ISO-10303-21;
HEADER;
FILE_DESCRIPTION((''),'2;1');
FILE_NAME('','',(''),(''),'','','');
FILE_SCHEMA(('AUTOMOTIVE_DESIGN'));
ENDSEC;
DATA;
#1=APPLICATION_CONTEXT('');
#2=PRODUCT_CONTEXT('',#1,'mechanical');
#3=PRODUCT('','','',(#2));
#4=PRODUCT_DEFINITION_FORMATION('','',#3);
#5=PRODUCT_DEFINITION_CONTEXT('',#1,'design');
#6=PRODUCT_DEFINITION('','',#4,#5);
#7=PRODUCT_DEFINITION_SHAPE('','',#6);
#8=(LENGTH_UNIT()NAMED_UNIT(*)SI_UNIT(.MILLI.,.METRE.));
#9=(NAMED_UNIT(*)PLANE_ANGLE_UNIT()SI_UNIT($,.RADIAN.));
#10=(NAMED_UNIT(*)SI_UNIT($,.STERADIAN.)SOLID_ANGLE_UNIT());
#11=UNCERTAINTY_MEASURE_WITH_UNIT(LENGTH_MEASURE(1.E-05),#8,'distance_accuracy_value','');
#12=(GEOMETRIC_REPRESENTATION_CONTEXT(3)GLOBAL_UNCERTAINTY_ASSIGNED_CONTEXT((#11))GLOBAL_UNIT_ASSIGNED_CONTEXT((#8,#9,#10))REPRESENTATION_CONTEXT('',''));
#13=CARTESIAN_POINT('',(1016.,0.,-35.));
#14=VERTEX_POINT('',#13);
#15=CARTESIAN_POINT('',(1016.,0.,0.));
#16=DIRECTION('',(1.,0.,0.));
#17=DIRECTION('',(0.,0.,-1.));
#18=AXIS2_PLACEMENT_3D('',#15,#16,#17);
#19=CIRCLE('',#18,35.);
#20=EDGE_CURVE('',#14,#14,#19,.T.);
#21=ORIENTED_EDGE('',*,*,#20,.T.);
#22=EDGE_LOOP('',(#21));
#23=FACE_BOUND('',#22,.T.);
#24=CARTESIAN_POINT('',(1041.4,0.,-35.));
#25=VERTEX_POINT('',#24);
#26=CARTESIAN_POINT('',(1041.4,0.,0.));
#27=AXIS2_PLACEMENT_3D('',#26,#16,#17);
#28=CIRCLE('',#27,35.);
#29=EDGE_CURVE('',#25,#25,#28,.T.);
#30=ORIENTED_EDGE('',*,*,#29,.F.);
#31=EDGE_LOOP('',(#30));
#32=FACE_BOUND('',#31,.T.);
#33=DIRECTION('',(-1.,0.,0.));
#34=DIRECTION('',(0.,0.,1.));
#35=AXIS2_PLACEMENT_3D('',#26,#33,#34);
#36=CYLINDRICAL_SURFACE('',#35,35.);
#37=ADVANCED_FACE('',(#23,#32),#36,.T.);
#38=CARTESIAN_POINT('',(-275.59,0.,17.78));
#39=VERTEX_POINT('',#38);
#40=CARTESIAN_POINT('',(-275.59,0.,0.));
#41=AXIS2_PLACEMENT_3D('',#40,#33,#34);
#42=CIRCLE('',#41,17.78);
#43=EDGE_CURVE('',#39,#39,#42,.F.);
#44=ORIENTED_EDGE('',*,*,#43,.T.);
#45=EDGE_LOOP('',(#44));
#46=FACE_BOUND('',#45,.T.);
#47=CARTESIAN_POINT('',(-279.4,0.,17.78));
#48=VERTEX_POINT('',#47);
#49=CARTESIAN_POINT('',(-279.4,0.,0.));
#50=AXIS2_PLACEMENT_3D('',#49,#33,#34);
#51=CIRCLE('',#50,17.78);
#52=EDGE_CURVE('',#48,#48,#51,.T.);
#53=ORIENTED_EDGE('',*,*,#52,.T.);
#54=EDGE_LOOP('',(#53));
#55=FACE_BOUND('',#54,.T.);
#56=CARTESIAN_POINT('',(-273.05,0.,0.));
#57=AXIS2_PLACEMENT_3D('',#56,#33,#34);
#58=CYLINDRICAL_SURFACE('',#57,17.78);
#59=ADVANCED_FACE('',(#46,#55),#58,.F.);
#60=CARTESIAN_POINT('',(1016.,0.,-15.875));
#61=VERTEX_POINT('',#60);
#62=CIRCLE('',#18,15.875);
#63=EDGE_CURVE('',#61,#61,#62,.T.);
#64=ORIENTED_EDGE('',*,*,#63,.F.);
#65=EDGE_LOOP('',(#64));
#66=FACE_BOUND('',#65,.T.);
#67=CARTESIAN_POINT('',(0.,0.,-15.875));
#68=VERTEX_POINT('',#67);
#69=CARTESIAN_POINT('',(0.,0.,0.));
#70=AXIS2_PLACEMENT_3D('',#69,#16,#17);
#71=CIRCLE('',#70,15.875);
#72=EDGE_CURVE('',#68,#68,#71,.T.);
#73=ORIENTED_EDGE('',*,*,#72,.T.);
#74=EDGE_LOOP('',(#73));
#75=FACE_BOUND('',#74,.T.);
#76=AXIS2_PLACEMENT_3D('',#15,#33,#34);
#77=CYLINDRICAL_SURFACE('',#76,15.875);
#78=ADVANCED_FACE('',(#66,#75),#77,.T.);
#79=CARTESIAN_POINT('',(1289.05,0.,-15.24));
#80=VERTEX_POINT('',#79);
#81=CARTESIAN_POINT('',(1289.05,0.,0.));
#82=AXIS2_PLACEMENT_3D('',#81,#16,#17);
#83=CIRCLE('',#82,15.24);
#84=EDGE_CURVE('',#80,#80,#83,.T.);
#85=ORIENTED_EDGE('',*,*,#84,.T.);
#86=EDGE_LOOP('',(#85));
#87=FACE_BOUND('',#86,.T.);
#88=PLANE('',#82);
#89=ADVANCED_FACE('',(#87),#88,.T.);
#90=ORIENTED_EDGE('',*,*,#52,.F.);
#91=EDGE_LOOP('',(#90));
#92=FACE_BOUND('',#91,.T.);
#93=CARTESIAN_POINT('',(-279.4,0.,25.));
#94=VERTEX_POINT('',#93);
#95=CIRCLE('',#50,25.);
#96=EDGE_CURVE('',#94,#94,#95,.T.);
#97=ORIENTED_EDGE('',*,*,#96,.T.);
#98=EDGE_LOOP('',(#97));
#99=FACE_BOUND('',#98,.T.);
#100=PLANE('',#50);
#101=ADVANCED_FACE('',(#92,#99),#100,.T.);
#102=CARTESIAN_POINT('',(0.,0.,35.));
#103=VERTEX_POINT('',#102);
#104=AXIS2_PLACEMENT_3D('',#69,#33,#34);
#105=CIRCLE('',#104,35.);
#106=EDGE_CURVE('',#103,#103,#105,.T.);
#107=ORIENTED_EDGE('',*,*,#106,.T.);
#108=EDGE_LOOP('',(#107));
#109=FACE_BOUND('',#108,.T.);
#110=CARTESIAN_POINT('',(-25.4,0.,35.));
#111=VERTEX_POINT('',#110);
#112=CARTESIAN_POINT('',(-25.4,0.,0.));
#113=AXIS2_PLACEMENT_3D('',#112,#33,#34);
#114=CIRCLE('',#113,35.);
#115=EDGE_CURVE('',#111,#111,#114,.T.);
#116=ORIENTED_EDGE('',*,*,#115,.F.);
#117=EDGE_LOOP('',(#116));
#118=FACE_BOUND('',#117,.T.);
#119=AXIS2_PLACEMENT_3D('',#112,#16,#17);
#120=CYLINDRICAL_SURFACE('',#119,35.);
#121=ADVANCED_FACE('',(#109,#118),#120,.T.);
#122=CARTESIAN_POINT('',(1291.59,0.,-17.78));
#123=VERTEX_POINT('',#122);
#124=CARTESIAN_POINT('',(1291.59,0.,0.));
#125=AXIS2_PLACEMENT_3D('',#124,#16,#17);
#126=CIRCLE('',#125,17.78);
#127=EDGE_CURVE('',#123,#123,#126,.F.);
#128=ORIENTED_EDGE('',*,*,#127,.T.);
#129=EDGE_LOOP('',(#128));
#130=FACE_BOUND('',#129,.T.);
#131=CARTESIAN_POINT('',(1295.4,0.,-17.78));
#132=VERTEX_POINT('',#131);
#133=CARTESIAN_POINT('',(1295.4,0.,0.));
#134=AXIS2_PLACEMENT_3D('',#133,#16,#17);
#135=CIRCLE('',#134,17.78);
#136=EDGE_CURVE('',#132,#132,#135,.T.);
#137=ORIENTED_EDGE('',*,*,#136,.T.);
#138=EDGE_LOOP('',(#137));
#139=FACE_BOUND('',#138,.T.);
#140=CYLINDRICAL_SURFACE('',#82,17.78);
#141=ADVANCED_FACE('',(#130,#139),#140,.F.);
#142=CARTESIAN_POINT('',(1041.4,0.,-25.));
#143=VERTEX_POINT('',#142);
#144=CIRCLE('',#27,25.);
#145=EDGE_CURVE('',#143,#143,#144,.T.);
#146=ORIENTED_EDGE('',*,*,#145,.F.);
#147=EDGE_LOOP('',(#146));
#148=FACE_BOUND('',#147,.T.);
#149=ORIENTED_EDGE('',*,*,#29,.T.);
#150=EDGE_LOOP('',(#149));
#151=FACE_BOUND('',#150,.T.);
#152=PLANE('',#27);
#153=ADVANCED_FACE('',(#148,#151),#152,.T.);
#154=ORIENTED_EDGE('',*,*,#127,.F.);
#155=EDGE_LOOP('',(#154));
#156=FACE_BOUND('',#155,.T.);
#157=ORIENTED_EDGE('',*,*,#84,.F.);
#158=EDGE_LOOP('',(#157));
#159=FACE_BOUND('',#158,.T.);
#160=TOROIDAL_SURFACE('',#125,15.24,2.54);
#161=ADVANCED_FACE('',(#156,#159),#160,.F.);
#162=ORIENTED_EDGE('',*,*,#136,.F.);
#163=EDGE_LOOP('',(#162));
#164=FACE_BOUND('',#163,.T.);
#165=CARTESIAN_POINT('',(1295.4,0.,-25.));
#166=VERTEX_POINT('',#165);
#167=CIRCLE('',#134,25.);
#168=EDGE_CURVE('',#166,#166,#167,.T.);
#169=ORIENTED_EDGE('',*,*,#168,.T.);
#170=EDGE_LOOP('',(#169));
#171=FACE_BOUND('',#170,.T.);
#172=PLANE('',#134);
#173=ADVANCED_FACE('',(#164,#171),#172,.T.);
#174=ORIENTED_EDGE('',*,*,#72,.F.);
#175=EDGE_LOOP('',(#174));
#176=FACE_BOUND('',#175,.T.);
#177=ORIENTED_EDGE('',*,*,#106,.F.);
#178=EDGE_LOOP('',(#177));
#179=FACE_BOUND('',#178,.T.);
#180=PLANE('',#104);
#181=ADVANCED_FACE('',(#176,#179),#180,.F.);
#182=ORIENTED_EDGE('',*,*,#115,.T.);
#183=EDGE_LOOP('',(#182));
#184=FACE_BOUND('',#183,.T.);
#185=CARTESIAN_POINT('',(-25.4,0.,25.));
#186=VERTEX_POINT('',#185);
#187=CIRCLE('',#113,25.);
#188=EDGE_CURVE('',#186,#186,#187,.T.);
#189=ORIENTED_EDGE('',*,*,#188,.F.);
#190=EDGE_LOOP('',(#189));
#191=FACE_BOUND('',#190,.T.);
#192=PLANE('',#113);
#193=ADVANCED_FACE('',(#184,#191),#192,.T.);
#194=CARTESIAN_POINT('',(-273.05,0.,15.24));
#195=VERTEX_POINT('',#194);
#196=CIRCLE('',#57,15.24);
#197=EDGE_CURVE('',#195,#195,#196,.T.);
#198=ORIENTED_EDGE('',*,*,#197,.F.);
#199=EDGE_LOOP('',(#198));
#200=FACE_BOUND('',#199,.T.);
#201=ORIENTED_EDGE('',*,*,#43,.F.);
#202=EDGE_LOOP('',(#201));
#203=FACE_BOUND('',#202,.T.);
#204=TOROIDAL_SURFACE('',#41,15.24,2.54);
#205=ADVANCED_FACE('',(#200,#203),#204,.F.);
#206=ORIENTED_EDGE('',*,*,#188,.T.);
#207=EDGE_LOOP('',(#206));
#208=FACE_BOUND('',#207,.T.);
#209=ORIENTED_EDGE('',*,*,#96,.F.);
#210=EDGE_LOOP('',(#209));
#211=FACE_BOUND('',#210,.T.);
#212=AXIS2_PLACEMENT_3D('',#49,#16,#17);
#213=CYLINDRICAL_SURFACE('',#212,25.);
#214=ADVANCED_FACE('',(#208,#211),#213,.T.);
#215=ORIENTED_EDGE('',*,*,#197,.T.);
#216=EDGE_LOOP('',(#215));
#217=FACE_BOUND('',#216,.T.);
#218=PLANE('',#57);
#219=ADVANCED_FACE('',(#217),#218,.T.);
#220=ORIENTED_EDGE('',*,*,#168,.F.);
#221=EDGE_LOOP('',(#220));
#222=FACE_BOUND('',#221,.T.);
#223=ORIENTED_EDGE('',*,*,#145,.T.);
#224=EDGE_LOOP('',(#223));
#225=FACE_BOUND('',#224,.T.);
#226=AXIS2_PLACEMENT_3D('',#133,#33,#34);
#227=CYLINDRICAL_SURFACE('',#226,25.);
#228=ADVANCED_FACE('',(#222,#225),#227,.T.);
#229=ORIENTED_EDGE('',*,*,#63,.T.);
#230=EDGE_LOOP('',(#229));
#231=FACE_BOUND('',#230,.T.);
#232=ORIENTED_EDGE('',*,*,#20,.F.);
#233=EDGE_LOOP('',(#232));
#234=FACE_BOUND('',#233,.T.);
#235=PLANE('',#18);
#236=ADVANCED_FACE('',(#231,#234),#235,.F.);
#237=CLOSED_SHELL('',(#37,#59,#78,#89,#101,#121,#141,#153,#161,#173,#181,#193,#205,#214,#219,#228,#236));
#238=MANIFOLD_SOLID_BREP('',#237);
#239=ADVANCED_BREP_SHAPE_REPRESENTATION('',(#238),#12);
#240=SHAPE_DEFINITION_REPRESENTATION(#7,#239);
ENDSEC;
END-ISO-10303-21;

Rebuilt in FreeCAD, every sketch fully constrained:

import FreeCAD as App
import Part
import Sketcher
from FreeCAD import Vector
Q = App.Units.Quantity


def edges_at(feature, points):
    """Names of the edges that pass closest to the given points."""
    edges = feature.Shape.Edges
    near = lambda p: min(range(len(edges)), key=lambda i: edges[i].distToShape(Part.Vertex(*p))[0])
    return sorted({f"Edge{near(p) + 1}" for p in points})

doc = App.newDocument("Part")
params = doc.addObject("Spreadsheet::Sheet", "Params")
for row, (alias, value) in enumerate([
    ("sketch1_diameter", "1.25 in"),
    ("pad1_length", "40 in"),
    ("pad2_length", "1 in"),
    ("pad3_length", "1 in"),
    ("pad4_length", "10 in"),
    ("pad5_length", "10 in"),
    ("sketch6_diameter", "1.4 in"),
    ("pocket1_length", "0.25 in"),
    ("sketch7_diameter", "1.4 in"),
    ("pocket2_length", "0.25 in"),
    ("fillet_radius", "0.1 in"),
], start=1):
    params.set(f"A{row}", alias)
    params.set(f"B{row}", "=" + value)
    params.setAlias(f"B{row}", alias)

body = doc.addObject("PartDesign::Body", "Body")

sketch1 = doc.addObject("Sketcher::SketchObject", "Sketch")
body.addObject(sketch1)
sketch1.AttachmentSupport = (doc.YZ_Plane, [""])
sketch1.MapMode = "FlatFace"
sketch1.addGeometry(Part.Circle(Vector(0, 0, 0), Vector(0, 0, 1), 16), False)
sketch1.addConstraint(Sketcher.Constraint("Coincident", 0, 3, -1, 1))
sketch1.addConstraint(Sketcher.Constraint("Diameter", 0, Q("1.25 in")))
sketch1.setExpression("Constraints[1]", "Params.sketch1_diameter")
pad1 = doc.addObject("PartDesign::Pad", "Pad")
body.addObject(pad1)
pad1.Profile = sketch1
pad1.setExpression("Length", "Params.pad1_length")

sketch2 = doc.addObject("Sketcher::SketchObject", "Sketch001")
body.addObject(sketch2)
sketch2.AttachmentSupport = (doc.YZ_Plane, [""])
sketch2.MapMode = "FlatFace"
sketch2.AttachmentOffset = App.Placement(Vector(0, 0, 40 * 25.4), App.Rotation())
sketch2.addGeometry(Part.Circle(Vector(0, 0, 0), Vector(0, 0, 1), 35), False)
sketch2.addConstraint(Sketcher.Constraint("Coincident", 0, 3, -1, 1))
sketch2.addConstraint(Sketcher.Constraint("Diameter", 0, 70.0))
pad2 = doc.addObject("PartDesign::Pad", "Pad001")
body.addObject(pad2)
pad2.Profile = sketch2
pad2.setExpression("Length", "Params.pad2_length")

sketch3 = doc.addObject("Sketcher::SketchObject", "Sketch002")
body.addObject(sketch3)
sketch3.AttachmentSupport = (doc.YZ_Plane, [""])
sketch3.MapMode = "FlatFace"
sketch3.AttachmentOffset = App.Placement(Vector(0, 0, -1 * 25.4), App.Rotation())
sketch3.addGeometry(Part.Circle(Vector(0, 0, 0), Vector(0, 0, 1), 35), False)
sketch3.addConstraint(Sketcher.Constraint("Coincident", 0, 3, -1, 1))
sketch3.addConstraint(Sketcher.Constraint("Diameter", 0, 70.0))
pad3 = doc.addObject("PartDesign::Pad", "Pad002")
body.addObject(pad3)
pad3.Profile = sketch3
pad3.setExpression("Length", "Params.pad3_length")

sketch4 = doc.addObject("Sketcher::SketchObject", "Sketch003")
body.addObject(sketch4)
sketch4.AttachmentSupport = (doc.YZ_Plane, [""])
sketch4.MapMode = "FlatFace"
sketch4.AttachmentOffset = App.Placement(Vector(0, 0, 41 * 25.4), App.Rotation())
sketch4.addGeometry(Part.Circle(Vector(0, 0, 0), Vector(0, 0, 1), 25), False)
sketch4.addConstraint(Sketcher.Constraint("Coincident", 0, 3, -1, 1))
sketch4.addConstraint(Sketcher.Constraint("Diameter", 0, 50.0))
pad4 = doc.addObject("PartDesign::Pad", "Pad003")
body.addObject(pad4)
pad4.Profile = sketch4
pad4.setExpression("Length", "Params.pad4_length")

sketch5 = doc.addObject("Sketcher::SketchObject", "Sketch004")
body.addObject(sketch5)
sketch5.AttachmentSupport = (doc.YZ_Plane, [""])
sketch5.MapMode = "FlatFace"
sketch5.AttachmentOffset = App.Placement(Vector(0, 0, -11 * 25.4), App.Rotation())
sketch5.addGeometry(Part.Circle(Vector(0, 0, 0), Vector(0, 0, 1), 25), False)
sketch5.addConstraint(Sketcher.Constraint("Coincident", 0, 3, -1, 1))
sketch5.addConstraint(Sketcher.Constraint("Diameter", 0, 50.0))
pad5 = doc.addObject("PartDesign::Pad", "Pad004")
body.addObject(pad5)
pad5.Profile = sketch5
pad5.setExpression("Length", "Params.pad5_length")

sketch6 = doc.addObject("Sketcher::SketchObject", "Sketch005")
body.addObject(sketch6)
sketch6.AttachmentSupport = (doc.YZ_Plane, [""])
sketch6.MapMode = "FlatFace"
sketch6.AttachmentOffset = App.Placement(Vector(0, 0, -11 * 25.4), App.Rotation())
sketch6.addGeometry(Part.Circle(Vector(0, 0, 0), Vector(0, 0, 1), 18), False)
sketch6.addConstraint(Sketcher.Constraint("Coincident", 0, 3, -1, 1))
sketch6.addConstraint(Sketcher.Constraint("Diameter", 0, Q("1.4 in")))
sketch6.setExpression("Constraints[1]", "Params.sketch6_diameter")
pocket1 = doc.addObject("PartDesign::Pocket", "Pocket")
body.addObject(pocket1)
pocket1.Profile = sketch6
pocket1.setExpression("Length", "Params.pocket1_length")
pocket1.Reversed = True

sketch7 = doc.addObject("Sketcher::SketchObject", "Sketch006")
body.addObject(sketch7)
sketch7.AttachmentSupport = (doc.YZ_Plane, [""])
sketch7.MapMode = "FlatFace"
sketch7.AttachmentOffset = App.Placement(Vector(0, 0, 50.75 * 25.4), App.Rotation())
sketch7.addGeometry(Part.Circle(Vector(0, 0, 0), Vector(0, 0, 1), 18), False)
sketch7.addConstraint(Sketcher.Constraint("Coincident", 0, 3, -1, 1))
sketch7.addConstraint(Sketcher.Constraint("Diameter", 0, Q("1.4 in")))
sketch7.setExpression("Constraints[1]", "Params.sketch7_diameter")
pocket2 = doc.addObject("PartDesign::Pocket", "Pocket001")
body.addObject(pocket2)
pocket2.Profile = sketch7
pocket2.setExpression("Length", "Params.pocket2_length")
pocket2.Reversed = True
doc.recompute()

fillet = doc.addObject("PartDesign::Fillet", "Fillet")
body.addObject(fillet)
fillet.Base = (pocket2, edges_at(pocket2, [(-273.05, 0, -17.78), (1289.05, 0, -17.78)]))
fillet.setExpression("Radius", "Params.fillet_radius")

doc.recompute()
